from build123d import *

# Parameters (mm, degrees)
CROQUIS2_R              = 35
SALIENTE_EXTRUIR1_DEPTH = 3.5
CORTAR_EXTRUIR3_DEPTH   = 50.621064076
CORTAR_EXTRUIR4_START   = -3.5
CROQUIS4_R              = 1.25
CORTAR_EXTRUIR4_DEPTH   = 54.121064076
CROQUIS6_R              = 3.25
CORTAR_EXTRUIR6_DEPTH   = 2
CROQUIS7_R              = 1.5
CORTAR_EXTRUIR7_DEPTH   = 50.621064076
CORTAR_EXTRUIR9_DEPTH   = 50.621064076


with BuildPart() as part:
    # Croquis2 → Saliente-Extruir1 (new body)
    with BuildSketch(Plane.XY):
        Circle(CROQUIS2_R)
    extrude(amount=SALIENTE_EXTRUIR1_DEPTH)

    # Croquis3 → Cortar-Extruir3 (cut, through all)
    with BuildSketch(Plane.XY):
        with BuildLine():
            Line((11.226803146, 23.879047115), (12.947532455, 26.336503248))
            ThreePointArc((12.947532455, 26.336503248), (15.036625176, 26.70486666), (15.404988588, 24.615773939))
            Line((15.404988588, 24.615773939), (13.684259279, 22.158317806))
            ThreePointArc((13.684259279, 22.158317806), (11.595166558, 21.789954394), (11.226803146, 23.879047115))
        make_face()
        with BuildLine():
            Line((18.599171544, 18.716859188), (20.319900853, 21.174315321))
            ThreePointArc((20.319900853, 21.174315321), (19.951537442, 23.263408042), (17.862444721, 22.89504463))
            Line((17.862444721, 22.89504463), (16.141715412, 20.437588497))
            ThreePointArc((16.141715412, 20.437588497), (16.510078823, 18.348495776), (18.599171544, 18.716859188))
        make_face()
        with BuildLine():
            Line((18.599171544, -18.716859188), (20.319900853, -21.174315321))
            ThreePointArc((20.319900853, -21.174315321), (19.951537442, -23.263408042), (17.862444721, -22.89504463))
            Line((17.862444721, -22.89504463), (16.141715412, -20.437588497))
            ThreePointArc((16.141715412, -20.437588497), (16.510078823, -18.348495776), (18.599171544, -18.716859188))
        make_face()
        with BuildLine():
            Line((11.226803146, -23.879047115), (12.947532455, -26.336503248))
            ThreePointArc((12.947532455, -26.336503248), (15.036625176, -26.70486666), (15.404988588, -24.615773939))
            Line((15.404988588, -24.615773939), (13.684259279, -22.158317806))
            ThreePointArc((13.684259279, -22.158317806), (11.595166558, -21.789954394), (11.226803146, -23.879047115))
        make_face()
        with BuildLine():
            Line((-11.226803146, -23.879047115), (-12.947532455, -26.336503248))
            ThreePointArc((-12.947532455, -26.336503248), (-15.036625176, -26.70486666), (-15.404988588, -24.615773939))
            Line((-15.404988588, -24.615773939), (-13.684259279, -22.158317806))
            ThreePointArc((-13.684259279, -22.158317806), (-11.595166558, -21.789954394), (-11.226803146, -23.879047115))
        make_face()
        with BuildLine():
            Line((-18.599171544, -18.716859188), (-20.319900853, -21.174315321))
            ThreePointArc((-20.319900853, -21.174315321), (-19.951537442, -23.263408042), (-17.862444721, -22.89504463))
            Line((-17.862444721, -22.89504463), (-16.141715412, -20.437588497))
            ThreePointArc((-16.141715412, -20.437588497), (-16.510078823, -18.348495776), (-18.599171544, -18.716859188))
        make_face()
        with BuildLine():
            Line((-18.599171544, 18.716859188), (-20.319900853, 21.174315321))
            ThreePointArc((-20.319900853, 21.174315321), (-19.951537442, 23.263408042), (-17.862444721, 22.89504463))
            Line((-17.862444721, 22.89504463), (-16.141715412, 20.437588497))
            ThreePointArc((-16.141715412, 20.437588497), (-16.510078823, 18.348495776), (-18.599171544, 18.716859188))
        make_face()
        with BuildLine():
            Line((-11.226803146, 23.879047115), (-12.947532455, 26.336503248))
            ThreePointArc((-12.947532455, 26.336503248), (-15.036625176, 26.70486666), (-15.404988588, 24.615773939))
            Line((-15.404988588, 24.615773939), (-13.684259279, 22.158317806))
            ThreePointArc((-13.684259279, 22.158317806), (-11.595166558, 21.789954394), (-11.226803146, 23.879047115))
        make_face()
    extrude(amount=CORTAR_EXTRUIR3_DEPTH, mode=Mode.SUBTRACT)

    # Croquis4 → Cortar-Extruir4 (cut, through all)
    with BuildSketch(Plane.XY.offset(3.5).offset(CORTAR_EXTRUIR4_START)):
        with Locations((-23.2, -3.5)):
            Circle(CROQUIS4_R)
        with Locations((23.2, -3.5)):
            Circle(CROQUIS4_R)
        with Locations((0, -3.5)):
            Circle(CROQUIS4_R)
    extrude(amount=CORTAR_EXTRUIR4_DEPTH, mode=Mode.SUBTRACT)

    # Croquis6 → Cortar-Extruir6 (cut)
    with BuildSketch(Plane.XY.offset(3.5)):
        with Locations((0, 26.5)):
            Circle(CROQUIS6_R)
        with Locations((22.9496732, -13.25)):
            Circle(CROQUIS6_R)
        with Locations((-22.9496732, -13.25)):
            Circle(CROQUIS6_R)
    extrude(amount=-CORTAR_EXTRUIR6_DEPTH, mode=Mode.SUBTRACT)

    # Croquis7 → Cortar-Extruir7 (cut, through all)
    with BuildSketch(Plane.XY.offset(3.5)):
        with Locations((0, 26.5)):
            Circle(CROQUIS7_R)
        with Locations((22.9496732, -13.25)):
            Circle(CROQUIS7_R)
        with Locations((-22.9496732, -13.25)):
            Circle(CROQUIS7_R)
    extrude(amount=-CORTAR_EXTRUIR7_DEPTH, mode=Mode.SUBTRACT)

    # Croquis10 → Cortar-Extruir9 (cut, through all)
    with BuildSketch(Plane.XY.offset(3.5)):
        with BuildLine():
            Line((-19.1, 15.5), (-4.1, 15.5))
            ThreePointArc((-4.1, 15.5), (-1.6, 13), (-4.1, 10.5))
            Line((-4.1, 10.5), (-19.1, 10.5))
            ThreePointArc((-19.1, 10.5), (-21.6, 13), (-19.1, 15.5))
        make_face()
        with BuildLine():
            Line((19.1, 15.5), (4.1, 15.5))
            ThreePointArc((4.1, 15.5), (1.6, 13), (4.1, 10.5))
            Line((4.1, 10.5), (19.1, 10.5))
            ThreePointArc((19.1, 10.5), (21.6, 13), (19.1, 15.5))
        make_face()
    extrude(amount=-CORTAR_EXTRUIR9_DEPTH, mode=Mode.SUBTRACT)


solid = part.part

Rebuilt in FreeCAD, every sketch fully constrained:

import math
import FreeCAD as App
import Part
import Sketcher
Q = App.Units.Quantity

doc = App.newDocument("Part")
body = doc.addObject("PartDesign::Body", "Body")

sketch1 = doc.addObject("Sketcher::SketchObject", "Sketch")
body.addObject(sketch1)
sketch1.AttachmentSupport = (doc.XY_Plane, [""])
sketch1.MapMode = "FlatFace"
sketch1.addGeometry(Part.Circle(App.Vector(0, 0, 0), App.Vector(0, 0, 1), 35), False)
sketch1.addConstraint(Sketcher.Constraint("Coincident", 0, 3, -1, 1))
sketch1.addConstraint(Sketcher.Constraint("Diameter", 0, Q("70 mm")))
pad1 = doc.addObject("PartDesign::Pad", "Pad")
body.addObject(pad1)
pad1.Profile = sketch1
pad1.Length = 3.5

sketch2 = doc.addObject("Sketcher::SketchObject", "Sketch001")
body.addObject(sketch2)
sketch2.AttachmentSupport = (doc.XY_Plane, [""])
sketch2.MapMode = "FlatFace"
sketch2.addGeometry(Part.LineSegment(App.Vector(12.947532, 26.336503, 0), App.Vector(11.226803, 23.879047, 0)), False)
sketch2.addGeometry(Part.ArcOfCircle(Part.Circle(App.Vector(12.455531, 23.018682, 0), App.Vector(0, 0, 1), 1.5), math.radians(145), math.radians(325)), False)
sketch2.addGeometry(Part.LineSegment(App.Vector(13.684259, 22.158318, 0), App.Vector(15.404989, 24.615774, 0)), False)
sketch2.addGeometry(Part.ArcOfCircle(Part.Circle(App.Vector(14.176261, 25.476139, 0), App.Vector(0, 0, 1), 1.5), math.radians(-35), math.radians(145)), False)
sketch2.addGeometry(Part.LineSegment(App.Vector(18.599172, 18.716859, 0), App.Vector(20.319901, 21.174315, 0)), False)
sketch2.addGeometry(Part.ArcOfCircle(Part.Circle(App.Vector(19.091173, 22.03468, 0), App.Vector(0, 0, 1), 1.5), math.radians(-35), math.radians(145)), False)
sketch2.addGeometry(Part.LineSegment(App.Vector(17.862445, 22.895045, 0), App.Vector(16.141715, 20.437588, 0)), False)
sketch2.addGeometry(Part.ArcOfCircle(Part.Circle(App.Vector(17.370443, 19.577224, 0), App.Vector(0, 0, 1), 1.5), math.radians(145), math.radians(325)), False)
sketch2.addGeometry(Part.LineSegment(App.Vector(20.319901, -21.174315, 0), App.Vector(18.599172, -18.716859, 0)), False)
sketch2.addGeometry(Part.ArcOfCircle(Part.Circle(App.Vector(17.370443, -19.577224, 0), App.Vector(0, 0, 1), 1.5), math.radians(35), math.radians(215)), False)
sketch2.addGeometry(Part.LineSegment(App.Vector(16.141715, -20.437588, 0), App.Vector(17.862445, -22.895045, 0)), False)
sketch2.addGeometry(Part.ArcOfCircle(Part.Circle(App.Vector(19.091173, -22.03468, 0), App.Vector(0, 0, 1), 1.5), math.radians(-145), math.radians(35)), False)
sketch2.addGeometry(Part.LineSegment(App.Vector(11.226803, -23.879047, 0), App.Vector(12.947532, -26.336503, 0)), False)
sketch2.addGeometry(Part.ArcOfCircle(Part.Circle(App.Vector(14.176261, -25.476139, 0), App.Vector(0, 0, 1), 1.5), math.radians(-145), math.radians(35)), False)
sketch2.addGeometry(Part.LineSegment(App.Vector(15.404989, -24.615774, 0), App.Vector(13.684259, -22.158318, 0)), False)
sketch2.addGeometry(Part.ArcOfCircle(Part.Circle(App.Vector(12.455531, -23.018682, 0), App.Vector(0, 0, 1), 1.5), math.radians(35), math.radians(215)), False)
sketch2.addGeometry(Part.LineSegment(App.Vector(-12.947532, -26.336503, 0), App.Vector(-11.226803, -23.879047, 0)), False)
sketch2.addGeometry(Part.ArcOfCircle(Part.Circle(App.Vector(-12.455531, -23.018682, 0), App.Vector(0, 0, 1), 1.5), math.radians(-35), math.radians(145)), False)
sketch2.addGeometry(Part.LineSegment(App.Vector(-13.684259, -22.158318, 0), App.Vector(-15.404989, -24.615774, 0)), False)
sketch2.addGeometry(Part.ArcOfCircle(Part.Circle(App.Vector(-14.176261, -25.476139, 0), App.Vector(0, 0, 1), 1.5), math.radians(145), math.radians(325)), False)
sketch2.addGeometry(Part.LineSegment(App.Vector(-18.599172, -18.716859, 0), App.Vector(-20.319901, -21.174315, 0)), False)
sketch2.addGeometry(Part.ArcOfCircle(Part.Circle(App.Vector(-19.091173, -22.03468, 0), App.Vector(0, 0, 1), 1.5), math.radians(145), math.radians(325)), False)
sketch2.addGeometry(Part.LineSegment(App.Vector(-17.862445, -22.895045, 0), App.Vector(-16.141715, -20.437588, 0)), False)
sketch2.addGeometry(Part.ArcOfCircle(Part.Circle(App.Vector(-17.370443, -19.577224, 0), App.Vector(0, 0, 1), 1.5), math.radians(-35), math.radians(145)), False)
sketch2.addGeometry(Part.LineSegment(App.Vector(-20.319901, 21.174315, 0), App.Vector(-18.599172, 18.716859, 0)), False)
sketch2.addGeometry(Part.ArcOfCircle(Part.Circle(App.Vector(-17.370443, 19.577224, 0), App.Vector(0, 0, 1), 1.5), math.radians(-145), math.radians(35)), False)
sketch2.addGeometry(Part.LineSegment(App.Vector(-16.141715, 20.437588, 0), App.Vector(-17.862445, 22.895045, 0)), False)
sketch2.addGeometry(Part.ArcOfCircle(Part.Circle(App.Vector(-19.091173, 22.03468, 0), App.Vector(0, 0, 1), 1.5), math.radians(35), math.radians(215)), False)
sketch2.addGeometry(Part.LineSegment(App.Vector(-11.226803, 23.879047, 0), App.Vector(-12.947532, 26.336503, 0)), False)
sketch2.addGeometry(Part.ArcOfCircle(Part.Circle(App.Vector(-14.176261, 25.476139, 0), App.Vector(0, 0, 1), 1.5), math.radians(35), math.radians(215)), False)
sketch2.addGeometry(Part.LineSegment(App.Vector(-15.404989, 24.615774, 0), App.Vector(-13.684259, 22.158318, 0)), False)
sketch2.addGeometry(Part.ArcOfCircle(Part.Circle(App.Vector(-12.455531, 23.018682, 0), App.Vector(0, 0, 1), 1.5), math.radians(-145), math.radians(35)), False)
sketch2.addConstraint(Sketcher.Constraint("Tangent", 0, 2, 1, 1))
sketch2.addConstraint(Sketcher.Constraint("Tangent", 1, 2, 2, 1))
sketch2.addConstraint(Sketcher.Constraint("Tangent", 2, 2, 3, 1))
sketch2.addConstraint(Sketcher.Constraint("Tangent", 3, 2, 0, 1))
sketch2.addConstraint(Sketcher.Constraint("Tangent", 4, 2, 5, 1))
sketch2.addConstraint(Sketcher.Constraint("Tangent", 5, 2, 6, 1))
sketch2.addConstraint(Sketcher.Constraint("Tangent", 6, 2, 7, 1))
sketch2.addConstraint(Sketcher.Constraint("Tangent", 7, 2, 4, 1))
sketch2.addConstraint(Sketcher.Constraint("Tangent", 8, 2, 9, 1))
sketch2.addConstraint(Sketcher.Constraint("Tangent", 9, 2, 10, 1))
sketch2.addConstraint(Sketcher.Constraint("Tangent", 10, 2, 11, 1))
sketch2.addConstraint(Sketcher.Constraint("Tangent", 11, 2, 8, 1))
sketch2.addConstraint(Sketcher.Constraint("Tangent", 12, 2, 13, 1))
sketch2.addConstraint(Sketcher.Constraint("Tangent", 13, 2, 14, 1))
sketch2.addConstraint(Sketcher.Constraint("Tangent", 14, 2, 15, 1))
sketch2.addConstraint(Sketcher.Constraint("Tangent", 15, 2, 12, 1))
sketch2.addConstraint(Sketcher.Constraint("Tangent", 16, 2, 17, 1))
sketch2.addConstraint(Sketcher.Constraint("Tangent", 17, 2, 18, 1))
sketch2.addConstraint(Sketcher.Constraint("Tangent", 18, 2, 19, 1))
sketch2.addConstraint(Sketcher.Constraint("Tangent", 19, 2, 16, 1))
sketch2.addConstraint(Sketcher.Constraint("Tangent", 20, 2, 21, 1))
sketch2.addConstraint(Sketcher.Constraint("Tangent", 21, 2, 22, 1))
sketch2.addConstraint(Sketcher.Constraint("Tangent", 22, 2, 23, 1))
sketch2.addConstraint(Sketcher.Constraint("Tangent", 23, 2, 20, 1))
sketch2.addConstraint(Sketcher.Constraint("Tangent", 24, 2, 25, 1))
sketch2.addConstraint(Sketcher.Constraint("Tangent", 25, 2, 26, 1))
sketch2.addConstraint(Sketcher.Constraint("Tangent", 26, 2, 27, 1))
sketch2.addConstraint(Sketcher.Constraint("Tangent", 27, 2, 24, 1))
sketch2.addConstraint(Sketcher.Constraint("Tangent", 28, 2, 29, 1))
sketch2.addConstraint(Sketcher.Constraint("Tangent", 29, 2, 30, 1))
sketch2.addConstraint(Sketcher.Constraint("Tangent", 30, 2, 31, 1))
sketch2.addConstraint(Sketcher.Constraint("Tangent", 31, 2, 28, 1))
sketch2.addConstraint(Sketcher.Constraint("Equal", 1, 3))
sketch2.addConstraint(Sketcher.Constraint("Equal", 3, 5))
sketch2.addConstraint(Sketcher.Constraint("Equal", 5, 7))
sketch2.addConstraint(Sketcher.Constraint("Equal", 7, 9))
sketch2.addConstraint(Sketcher.Constraint("Equal", 9, 11))
sketch2.addConstraint(Sketcher.Constraint("Equal", 11, 13))
sketch2.addConstraint(Sketcher.Constraint("Equal", 13, 15))
sketch2.addConstraint(Sketcher.Constraint("Equal", 15, 17))
sketch2.addConstraint(Sketcher.Constraint("Equal", 17, 19))
sketch2.addConstraint(Sketcher.Constraint("Equal", 19, 21))
sketch2.addConstraint(Sketcher.Constraint("Equal", 21, 23))
sketch2.addConstraint(Sketcher.Constraint("Equal", 23, 25))
sketch2.addConstraint(Sketcher.Constraint("Equal", 25, 27))
sketch2.addConstraint(Sketcher.Constraint("Equal", 27, 29))
sketch2.addConstraint(Sketcher.Constraint("Equal", 29, 31))
sketch2.addConstraint(Sketcher.Constraint("Symmetric", 1, 3, 17, 3, -1, 1))
sketch2.addConstraint(Sketcher.Constraint("Symmetric", 3, 3, 19, 3, -1, 1))
sketch2.addConstraint(Sketcher.Constraint("Symmetric", 5, 3, 21, 3, -1, 1))
sketch2.addConstraint(Sketcher.Constraint("Symmetric", 7, 3, 23, 3, -1, 1))
sketch2.addConstraint(Sketcher.Constraint("Symmetric", 9, 3, 25, 3, -1, 1))
sketch2.addConstraint(Sketcher.Constraint("Symmetric", 11, 3, 27, 3, -1, 1))
sketch2.addConstraint(Sketcher.Constraint("Symmetric", 13, 3, 29, 3, -1, 1))
sketch2.addConstraint(Sketcher.Constraint("Symmetric", 15, 3, 31, 3, -1, 1))
sketch2.addConstraint(Sketcher.Constraint("Symmetric", 15, 3, 17, 3, -2))
sketch2.addConstraint(Sketcher.Constraint("Symmetric", 13, 3, 19, 3, -2))
sketch2.addConstraint(Sketcher.Constraint("Symmetric", 11, 3, 21, 3, -2))
sketch2.addConstraint(Sketcher.Constraint("Symmetric", 9, 3, 23, 3, -2))
sketch2.addConstraint(Sketcher.Constraint("Parallel", 2, 4))
sketch2.addConstraint(Sketcher.Constraint("Equal", 2, 4))
sketch2.addConstraint(Sketcher.Constraint("Radius", 1, Q("1.5 mm")))
sketch2.addConstraint(Sketcher.Constraint("Angle", 0, Q("-125 deg")))
sketch2.addConstraint(Sketcher.Constraint("Distance", 0, Q("3 mm")))
sketch2.addConstraint(Sketcher.Constraint("DistanceX", -1, 1, 4, 2, Q("20.319901 mm")))
sketch2.addConstraint(Sketcher.Constraint("DistanceX", -1, 1, 1, 3, Q("12.455531 mm")))
sketch2.addConstraint(Sketcher.Constraint("DistanceY", -1, 1, 3, 3, Q("25.476139 mm")))
sketch2.addConstraint(Sketcher.Constraint("DistanceY", -1, 1, 5, 3, Q("22.03468 mm")))
pocket1 = doc.addObject("PartDesign::Pocket", "Pocket")
body.addObject(pocket1)
pocket1.Profile = sketch2
pocket1.Type = "ThroughAll"
pocket1.Reversed = True

sketch3 = doc.addObject("Sketcher::SketchObject", "Sketch002")
body.addObject(sketch3)
sketch3.AttachmentSupport = (doc.XY_Plane, [""])
sketch3.MapMode = "FlatFace"
sketch3.addGeometry(Part.Circle(App.Vector(-23.2, -3.5, 0), App.Vector(0, 0, 1), 1.25), False)
sketch3.addGeometry(Part.Circle(App.Vector(23.2, -3.5, 0), App.Vector(0, 0, 1), 1.25), False)
sketch3.addGeometry(Part.Circle(App.Vector(0, -3.5, 0), App.Vector(0, 0, 1), 1.25), False)
sketch3.addConstraint(Sketcher.Constraint("Equal", 0, 1))
sketch3.addConstraint(Sketcher.Constraint("Equal", 1, 2))
sketch3.addConstraint(Sketcher.Constraint("Symmetric", 0, 3, 1, 3, -2))
sketch3.addConstraint(Sketcher.Constraint("PointOnObject", 2, 3, -2))
sketch3.addConstraint(Sketcher.Constraint("Horizontal", 1, 3, 2, 3))
sketch3.addConstraint(Sketcher.Constraint("Diameter", 0, Q("2.5 mm")))
sketch3.addConstraint(Sketcher.Constraint("DistanceX", 0, 3, -1, 1, Q("23.2 mm")))
sketch3.addConstraint(Sketcher.Constraint("DistanceY", 0, 3, -1, 1, Q("3.5 mm")))
pocket2 = doc.addObject("PartDesign::Pocket", "Pocket001")
body.addObject(pocket2)
pocket2.Profile = sketch3
pocket2.Type = "ThroughAll"
pocket2.Reversed = True

sketch4 = doc.addObject("Sketcher::SketchObject", "Sketch003")
body.addObject(sketch4)
sketch4.AttachmentSupport = (doc.XY_Plane, [""])
sketch4.MapMode = "FlatFace"
sketch4.AttachmentOffset = App.Placement(App.Vector(0, 0, 3.5), App.Rotation())
sketch4.addGeometry(Part.Circle(App.Vector(0, 26.5, 0), App.Vector(0, 0, 1), 3.25), False)
sketch4.addGeometry(Part.Circle(App.Vector(22.949673, -13.25, 0), App.Vector(0, 0, 1), 3.25), False)
sketch4.addGeometry(Part.Circle(App.Vector(-22.949673, -13.25, 0), App.Vector(0, 0, 1), 3.25), False)
sketch4.addConstraint(Sketcher.Constraint("Equal", 0, 1))
sketch4.addConstraint(Sketcher.Constraint("Equal", 1, 2))
sketch4.addConstraint(Sketcher.Constraint("Symmetric", 1, 3, 2, 3, -2))
sketch4.addConstraint(Sketcher.Constraint("PointOnObject", 0, 3, -2))
sketch4.addConstraint(Sketcher.Constraint("Diameter", 0, Q("6.5 mm")))
sketch4.addConstraint(Sketcher.Constraint("DistanceY", -1, 1, 0, 3, Q("26.5 mm")))
sketch4.addConstraint(Sketcher.Constraint("DistanceY", 1, 3, -1, 1, Q("13.25 mm")))
sketch4.addConstraint(Sketcher.Constraint("DistanceX", -1, 1, 1, 3, Q("22.949673 mm")))
pocket3 = doc.addObject("PartDesign::Pocket", "Pocket002")
body.addObject(pocket3)
pocket3.Profile = sketch4
pocket3.Length = 2

sketch5 = doc.addObject("Sketcher::SketchObject", "Sketch004")
body.addObject(sketch5)
sketch5.AttachmentSupport = (doc.XY_Plane, [""])
sketch5.MapMode = "FlatFace"
sketch5.AttachmentOffset = App.Placement(App.Vector(0, 0, 3.5), App.Rotation())
sketch5.addGeometry(Part.Circle(App.Vector(0, 26.5, 0), App.Vector(0, 0, 1), 1.5), False)
sketch5.addGeometry(Part.Circle(App.Vector(22.949673, -13.25, 0), App.Vector(0, 0, 1), 1.5), False)
sketch5.addGeometry(Part.Circle(App.Vector(-22.949673, -13.25, 0), App.Vector(0, 0, 1), 1.5), False)
sketch5.addConstraint(Sketcher.Constraint("Equal", 0, 1))
sketch5.addConstraint(Sketcher.Constraint("Equal", 1, 2))
sketch5.addConstraint(Sketcher.Constraint("Symmetric", 1, 3, 2, 3, -2))
sketch5.addConstraint(Sketcher.Constraint("PointOnObject", 0, 3, -2))
sketch5.addConstraint(Sketcher.Constraint("Diameter", 0, Q("3 mm")))
sketch5.addConstraint(Sketcher.Constraint("DistanceY", -1, 1, 0, 3, Q("26.5 mm")))
sketch5.addConstraint(Sketcher.Constraint("DistanceY", 1, 3, -1, 1, Q("13.25 mm")))
sketch5.addConstraint(Sketcher.Constraint("DistanceX", -1, 1, 1, 3, Q("22.949673 mm")))
pocket4 = doc.addObject("PartDesign::Pocket", "Pocket003")
body.addObject(pocket4)
pocket4.Profile = sketch5
pocket4.Type = "ThroughAll"

sketch6 = doc.addObject("Sketcher::SketchObject", "Sketch005")
body.addObject(sketch6)
sketch6.AttachmentSupport = (doc.XY_Plane, [""])
sketch6.MapMode = "FlatFace"
sketch6.AttachmentOffset = App.Placement(App.Vector(0, 0, 3.5), App.Rotation())
sketch6.addGeometry(Part.LineSegment(App.Vector(-4.1, 15.5, 0), App.Vector(-19.1, 15.5, 0)), False)
sketch6.addGeometry(Part.ArcOfCircle(Part.Circle(App.Vector(-19.1, 13, 0), App.Vector(0, 0, 1), 2.5), math.radians(90), math.radians(270)), False)
sketch6.addGeometry(Part.LineSegment(App.Vector(-19.1, 10.5, 0), App.Vector(-4.1, 10.5, 0)), False)
sketch6.addGeometry(Part.ArcOfCircle(Part.Circle(App.Vector(-4.1, 13, 0), App.Vector(0, 0, 1), 2.5), math.radians(-90), math.radians(90)), False)
sketch6.addGeometry(Part.LineSegment(App.Vector(19.1, 15.5, 0), App.Vector(4.1, 15.5, 0)), False)
sketch6.addGeometry(Part.ArcOfCircle(Part.Circle(App.Vector(4.1, 13, 0), App.Vector(0, 0, 1), 2.5), math.radians(90), math.radians(270)), False)
sketch6.addGeometry(Part.LineSegment(App.Vector(4.1, 10.5, 0), App.Vector(19.1, 10.5, 0)), False)
sketch6.addGeometry(Part.ArcOfCircle(Part.Circle(App.Vector(19.1, 13, 0), App.Vector(0, 0, 1), 2.5), math.radians(-90), math.radians(90)), False)
sketch6.addConstraint(Sketcher.Constraint("Tangent", 0, 2, 1, 1))
sketch6.addConstraint(Sketcher.Constraint("Tangent", 1, 2, 2, 1))
sketch6.addConstraint(Sketcher.Constraint("Tangent", 2, 2, 3, 1))
sketch6.addConstraint(Sketcher.Constraint("Tangent", 3, 2, 0, 1))
sketch6.addConstraint(Sketcher.Constraint("Tangent", 4, 2, 5, 1))
sketch6.addConstraint(Sketcher.Constraint("Tangent", 5, 2, 6, 1))
sketch6.addConstraint(Sketcher.Constraint("Tangent", 6, 2, 7, 1))
sketch6.addConstraint(Sketcher.Constraint("Tangent", 7, 2, 4, 1))
sketch6.addConstraint(Sketcher.Constraint("Horizontal", 0))
sketch6.addConstraint(Sketcher.Constraint("Horizontal", 2))
sketch6.addConstraint(Sketcher.Constraint("Horizontal", 4))
sketch6.addConstraint(Sketcher.Constraint("Horizontal", 6))
sketch6.addConstraint(Sketcher.Constraint("Equal", 3, 5))
sketch6.addConstraint(Sketcher.Constraint("Symmetric", 3, 3, 5, 3, -2))
sketch6.addConstraint(Sketcher.Constraint("Equal", 2, 4))
sketch6.addConstraint(Sketcher.Constraint("Radius", 1, Q("2.5 mm")))
sketch6.addConstraint(Sketcher.Constraint("DistanceX", 0, 2, 0, 1, Q("15 mm")))
sketch6.addConstraint(Sketcher.Constraint("DistanceY", -1, 1, 1, 3, Q("13 mm")))
sketch6.addConstraint(Sketcher.Constraint("DistanceX", 1, 3, -1, 1, Q("19.1 mm")))
pocket5 = doc.addObject("PartDesign::Pocket", "Pocket004")
body.addObject(pocket5)
pocket5.Profile = sketch6
pocket5.Type = "ThroughAll"

doc.recompute()
